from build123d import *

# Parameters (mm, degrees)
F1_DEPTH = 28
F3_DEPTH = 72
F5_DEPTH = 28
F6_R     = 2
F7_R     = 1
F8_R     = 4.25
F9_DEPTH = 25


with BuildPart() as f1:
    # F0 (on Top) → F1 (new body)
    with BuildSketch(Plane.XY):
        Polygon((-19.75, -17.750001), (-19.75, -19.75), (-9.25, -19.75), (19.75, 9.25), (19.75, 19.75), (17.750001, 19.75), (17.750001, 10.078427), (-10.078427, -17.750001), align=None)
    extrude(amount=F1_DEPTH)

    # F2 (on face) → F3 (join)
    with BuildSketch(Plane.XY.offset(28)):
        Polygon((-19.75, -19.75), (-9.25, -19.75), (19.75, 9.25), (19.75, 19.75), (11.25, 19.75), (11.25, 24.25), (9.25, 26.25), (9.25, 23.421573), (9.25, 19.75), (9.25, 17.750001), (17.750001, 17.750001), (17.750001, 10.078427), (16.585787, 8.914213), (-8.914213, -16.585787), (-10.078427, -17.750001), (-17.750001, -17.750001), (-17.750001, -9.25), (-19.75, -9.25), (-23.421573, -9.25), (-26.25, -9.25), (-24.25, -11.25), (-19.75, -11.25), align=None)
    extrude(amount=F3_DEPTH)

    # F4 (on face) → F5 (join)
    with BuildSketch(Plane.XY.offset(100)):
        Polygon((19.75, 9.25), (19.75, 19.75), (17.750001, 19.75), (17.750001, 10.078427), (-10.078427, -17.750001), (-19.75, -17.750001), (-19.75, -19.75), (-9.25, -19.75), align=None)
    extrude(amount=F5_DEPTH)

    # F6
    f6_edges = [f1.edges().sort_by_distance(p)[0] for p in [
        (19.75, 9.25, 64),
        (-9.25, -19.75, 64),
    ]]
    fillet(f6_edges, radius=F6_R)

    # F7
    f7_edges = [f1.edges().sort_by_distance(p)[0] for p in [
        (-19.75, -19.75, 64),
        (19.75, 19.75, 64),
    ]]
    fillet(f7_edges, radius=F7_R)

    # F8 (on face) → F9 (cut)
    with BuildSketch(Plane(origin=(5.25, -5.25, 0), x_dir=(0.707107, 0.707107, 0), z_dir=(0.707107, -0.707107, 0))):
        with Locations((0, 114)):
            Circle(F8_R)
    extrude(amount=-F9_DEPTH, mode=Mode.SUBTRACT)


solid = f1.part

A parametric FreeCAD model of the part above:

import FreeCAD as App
import Part
import Sketcher

V = App.Vector


def edges_at(feature, points):
    """Names of the edges that pass closest to the given points."""
    edges = feature.Shape.Edges
    near = lambda p: min(range(len(edges)), key=lambda i: edges[i].distToShape(Part.Vertex(*p))[0])
    return sorted({f"Edge{near(p) + 1}" for p in points})


def add_polygon(sketch, points):
    """Adds a closed chain of lines whose ends are joined by coincident constraints."""
    first, n = sketch.GeometryCount, len(points)
    for a, b in zip(points, points[1:] + points[:1]):
        sketch.addGeometry(Part.LineSegment(App.Vector(*a, 0), App.Vector(*b, 0)), False)
    for i in range(n):
        sketch.addConstraint(Sketcher.Constraint("Coincident", first + i, 2, first + (i + 1) % n, 1))

doc = App.newDocument("Part")
body = doc.addObject("PartDesign::Body", "Body")

sketch1 = body.newObject("Sketcher::SketchObject", "Sketch")
sketch1.AttachmentSupport = (doc.getObject("XY_Plane"), [""])
sketch1.MapMode = "FlatFace"
add_polygon(sketch1, [(-19.75, -17.750001), (-19.75, -19.75), (-9.25, -19.75), (19.75, 9.25), (19.75, 19.75), (17.750001, 19.75), (17.750001, 10.078427), (-10.078427, -17.750001)])
sketch1.addConstraint([
    Sketcher.Constraint("Vertical", 0),
    Sketcher.Constraint("Horizontal", 1),
    Sketcher.Constraint("Vertical", 3),
    Sketcher.Constraint("Horizontal", 4),
    Sketcher.Constraint("Vertical", 5),
    Sketcher.Constraint("Horizontal", 7),
    Sketcher.Constraint("Symmetric", 0, 2, 3, 2, -1, 1),
    Sketcher.Constraint("Parallel", 2, 6),
    Sketcher.Constraint("Equal", 4, 0),
    Sketcher.Constraint("Equal", 1, 3),
    Sketcher.Constraint("Equal", 7, 5),
    Sketcher.Constraint("DistanceX", 4, 2, 4, 1, 1.999999),
    Sketcher.Constraint("DistanceX", 1, 1, 1, 2, 10.5),
    Sketcher.Constraint("DistanceX", 1, 2, 2, 2, 29.0),
    Sketcher.Constraint("Distance", 6, 39.35534),
])
pad1 = body.newObject("PartDesign::Pad", "Pad")
pad1.Profile = sketch1
pad1.Length = 28

sketch2 = body.newObject("Sketcher::SketchObject", "Sketch001")
sketch2.AttachmentSupport = (doc.getObject("XY_Plane"), [""])
sketch2.MapMode = "FlatFace"
sketch2.AttachmentOffset = App.Placement(V(0, 0, 28), App.Rotation())
add_polygon(sketch2, [(-19.75, -19.75), (-9.25, -19.75), (19.75, 9.25), (19.75, 19.75), (11.25, 19.75), (11.25, 24.25), (9.25, 26.25), (9.25, 17.750001), (17.750001, 17.750001), (17.750001, 10.078427), (-10.078427, -17.750001), (-17.750001, -17.750001), (-17.750001, -9.25), (-26.25, -9.25), (-24.25, -11.25), (-19.75, -11.25)])
sketch2.addConstraint([
    Sketcher.Constraint("Horizontal", 0),
    Sketcher.Constraint("Vertical", 2),
    Sketcher.Constraint("Horizontal", 3),
    Sketcher.Constraint("Vertical", 4),
    Sketcher.Constraint("Vertical", 6),
    Sketcher.Constraint("Horizontal", 7),
    Sketcher.Constraint("Vertical", 8),
    Sketcher.Constraint("Horizontal", 10),
    Sketcher.Constraint("Vertical", 11),
    Sketcher.Constraint("Horizontal", 12),
    Sketcher.Constraint("Horizontal", 14),
    Sketcher.Constraint("Vertical", 15),
    Sketcher.Constraint("Symmetric", 7, 2, 10, 2, -1, 1),
    Sketcher.Constraint("Symmetric", 2, 2, 15, 2, -1, 1),
    Sketcher.Constraint("Perpendicular", 1, 5),
    Sketcher.Constraint("Perpendicular", 5, 9),
    Sketcher.Constraint("Perpendicular", 9, 13),
    Sketcher.Constraint("Equal", 3, 7),
    Sketcher.Constraint("Equal", 3, 12),
    Sketcher.Constraint("Equal", 0, 2),
    Sketcher.Constraint("Equal", 14, 4),
    Sketcher.Constraint("Equal", 12, 6),
    Sketcher.Constraint("Equal", 10, 8),
    Sketcher.Constraint("Equal", 7, 11),
    Sketcher.Constraint("Equal", 11, 15),
    Sketcher.Constraint("DistanceX", 0, 1, 0, 2, 10.5),
    Sketcher.Constraint("DistanceX", 3, 2, 3, 1, 8.5),
    Sketcher.Constraint("DistanceX", 14, 1, 14, 2, 4.5),
    Sketcher.Constraint("DistanceX", 0, 2, 1, 2, 29.0),
    Sketcher.Constraint("Distance", 9, 39.35534),
])
pad2 = body.newObject("PartDesign::Pad", "Pad001")
pad2.Profile = sketch2
pad2.Length = 72

sketch3 = body.newObject("Sketcher::SketchObject", "Sketch002")
sketch3.AttachmentSupport = (doc.getObject("XY_Plane"), [""])
sketch3.MapMode = "FlatFace"
sketch3.AttachmentOffset = App.Placement(V(0, 0, 100), App.Rotation())
add_polygon(sketch3, [(19.75, 9.25), (19.75, 19.75), (17.750001, 19.75), (17.750001, 10.078427), (-10.078427, -17.750001), (-19.75, -17.750001), (-19.75, -19.75), (-9.25, -19.75)])
sketch3.addConstraint([
    Sketcher.Constraint("Vertical", 0),
    Sketcher.Constraint("Horizontal", 1),
    Sketcher.Constraint("Vertical", 2),
    Sketcher.Constraint("Horizontal", 4),
    Sketcher.Constraint("Vertical", 5),
    Sketcher.Constraint("Horizontal", 6),
    Sketcher.Constraint("Symmetric", 0, 2, 5, 2, -1, 1),
    Sketcher.Constraint("Parallel", 3, 7),
    Sketcher.Constraint("Equal", 6, 0),
    Sketcher.Constraint("Equal", 4, 2),
    Sketcher.Constraint("Equal", 1, 5),
    Sketcher.Constraint("DistanceX", 1, 2, 1, 1, 1.999999),
    Sketcher.Constraint("DistanceX", 6, 1, 6, 2, 10.5),
    Sketcher.Constraint("DistanceX", 6, 2, 2, 2, 27.000001),
    Sketcher.Constraint("Distance", 3, 39.35534),
])
pad3 = body.newObject("PartDesign::Pad", "Pad002")
pad3.Profile = sketch3
pad3.Length = 28
doc.recompute()

fillet = body.newObject("PartDesign::Fillet", "Fillet")
fillet.Base = (pad3, edges_at(pad3, [(19.75, 9.25, 64), (-9.25, -19.75, 64)]))
fillet.Radius = 2
doc.recompute()

fillet2 = body.newObject("PartDesign::Fillet", "Fillet001")
fillet2.Base = (fillet, edges_at(fillet, [(-19.75, -19.75, 64), (19.75, 19.75, 64)]))
fillet2.Radius = 1

sketch4 = body.newObject("Sketcher::SketchObject", "Sketch003")
sketch4.Placement = App.Placement(V(5.25, -5.25, 0), App.Rotation(V(0.707106781, 0.707106781, 0), V(0, 0, 0.999999999), V(0.707106781, -0.707106781, 0), "ZXY"))
sketch4.addGeometry(Part.Circle(V(0, 114, 0), V(0, 0, 1), 4.25), False)
sketch4.addConstraint([
    Sketcher.Constraint("PointOnObject", 0, 3, -2),
    Sketcher.Constraint("Diameter", 0, 8.5),
    Sketcher.Constraint("DistanceY", -1, 1, 0, 3, 114.0),
])
pocket1 = body.newObject("PartDesign::Pocket", "Pocket")
pocket1.Profile = sketch4
pocket1.Length = 25

doc.recompute()
